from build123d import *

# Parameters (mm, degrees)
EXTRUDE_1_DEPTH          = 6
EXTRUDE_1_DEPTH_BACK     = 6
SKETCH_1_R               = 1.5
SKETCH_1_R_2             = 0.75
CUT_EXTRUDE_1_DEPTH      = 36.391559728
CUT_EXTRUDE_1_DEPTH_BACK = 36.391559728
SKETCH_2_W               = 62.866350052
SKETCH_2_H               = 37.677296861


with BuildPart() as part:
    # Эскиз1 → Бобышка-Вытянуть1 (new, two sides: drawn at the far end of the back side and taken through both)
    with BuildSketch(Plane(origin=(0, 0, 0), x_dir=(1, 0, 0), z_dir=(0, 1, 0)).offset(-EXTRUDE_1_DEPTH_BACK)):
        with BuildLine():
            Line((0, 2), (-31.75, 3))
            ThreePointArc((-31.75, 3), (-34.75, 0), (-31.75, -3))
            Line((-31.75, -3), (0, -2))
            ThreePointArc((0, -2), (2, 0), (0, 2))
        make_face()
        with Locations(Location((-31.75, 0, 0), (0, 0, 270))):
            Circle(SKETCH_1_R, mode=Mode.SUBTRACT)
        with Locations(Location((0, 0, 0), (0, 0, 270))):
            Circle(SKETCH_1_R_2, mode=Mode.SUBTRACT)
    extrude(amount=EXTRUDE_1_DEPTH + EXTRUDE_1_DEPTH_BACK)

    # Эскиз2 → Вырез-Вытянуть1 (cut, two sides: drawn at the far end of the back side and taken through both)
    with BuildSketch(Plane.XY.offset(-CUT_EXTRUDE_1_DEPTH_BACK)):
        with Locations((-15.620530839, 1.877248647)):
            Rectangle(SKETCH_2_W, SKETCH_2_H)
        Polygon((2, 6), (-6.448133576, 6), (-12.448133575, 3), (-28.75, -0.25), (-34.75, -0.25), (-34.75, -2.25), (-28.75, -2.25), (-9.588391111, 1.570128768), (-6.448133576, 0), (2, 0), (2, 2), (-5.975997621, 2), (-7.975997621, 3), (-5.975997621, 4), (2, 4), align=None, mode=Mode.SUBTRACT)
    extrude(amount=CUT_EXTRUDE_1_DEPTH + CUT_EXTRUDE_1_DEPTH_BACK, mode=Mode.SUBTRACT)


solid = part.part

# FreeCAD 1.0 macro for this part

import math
import FreeCAD as App
import Part
import Sketcher
from FreeCAD import Vector


def add_polygon(sketch, points):
    """Adds a closed chain of lines whose ends are joined by coincident constraints."""
    first, n = sketch.GeometryCount, len(points)
    for a, b in zip(points, points[1:] + points[:1]):
        sketch.addGeometry(Part.LineSegment(App.Vector(*a, 0), App.Vector(*b, 0)), False)
    for i in range(n):
        sketch.addConstraint(Sketcher.Constraint("Coincident", first + i, 2, first + (i + 1) % n, 1))

doc = App.newDocument("Part")
body = doc.addObject("PartDesign::Body", "Body")

# Sketch on XZ plane
sketch1 = body.newObject("Sketcher::SketchObject", "Sketch")
sketch1.AttachmentSupport = (doc.getObject("XZ_Plane"), [""])
sketch1.MapMode = "FlatFace"
sketch1.addGeometry([
    Part.LineSegment(Vector(0, -2, 0), Vector(-31.75, -3, 0)),  # 0
    Part.ArcOfCircle(Part.Circle(Vector(-31.75, 0, 0), Vector(0, 0, 1), 3), math.radians(90), math.radians(270)),  # 1
    Part.LineSegment(Vector(-31.75, 3, 0), Vector(0, 2, 0)),  # 2
    Part.ArcOfCircle(Part.Circle(Vector(0, 0, 0), Vector(0, 0, 1), 2), math.radians(-90), math.radians(90)),  # 3
    Part.Circle(Vector(-31.75, 0, 0), Vector(0, 0, 1), 1.5),  # 4
    Part.Circle(Vector(0, 0, 0), Vector(0, 0, 1), 0.75),  # 5
], False)
sketch1.addConstraint([
    Sketcher.Constraint("Coincident", 0, 2, 1, 2),
    Sketcher.Constraint("Coincident", 1, 1, 2, 1),
    Sketcher.Constraint("Coincident", 2, 2, 3, 2),
    Sketcher.Constraint("Coincident", 3, 1, 0, 1),
    Sketcher.Constraint("Coincident", 3, 3, -1, 1),
    Sketcher.Constraint("Coincident", 5, 3, -1, 1),
    Sketcher.Constraint("Coincident", 4, 3, 1, 3),
    Sketcher.Constraint("Symmetric", 0, 2, 1, 1, -1),
    Sketcher.Constraint("PointOnObject", 2, 2, -2),
    Sketcher.Constraint("PointOnObject", 3, 1, -2),
    Sketcher.Constraint("Vertical", 4, 3, 0, 2),
    Sketcher.Constraint("Diameter", 4, 3.0),
    Sketcher.Constraint("Radius", 1, 3.0),
    Sketcher.Constraint("Radius", 3, 2.0),
    Sketcher.Constraint("Diameter", 5, 1.5),
    Sketcher.Constraint("DistanceX", 1, 3, -1, 1, 31.75),
])
pad1 = body.newObject("PartDesign::Pad", "Pad")
pad1.Profile = sketch1
pad1.Type = "TwoLengths"
pad1.Length = 6
pad1.Length2 = 6
pad1.Reversed = True

# Sketch on XY plane
sketch2 = body.newObject("Sketcher::SketchObject", "Sketch001")
sketch2.AttachmentSupport = (doc.getObject("XY_Plane"), [""])
sketch2.MapMode = "FlatFace"
add_polygon(sketch2, [(-47.053706, 20.715897), (-47.053706, -16.9614), (15.812644, -16.9614), (15.812644, 20.715897)])  # lines 0-3
add_polygon(sketch2, [(-6.448134, 6), (2, 6), (2, 4), (-5.975998, 4), (-7.975998, 3), (-5.975998, 2), (2, 2), (2, 0), (-6.448134, 0), (-9.588391, 1.570129), (-28.75, -2.25), (-34.75, -2.25), (-34.75, -0.25), (-28.75, -0.25), (-12.448134, 3)])  # lines 4-18
sketch2.addConstraint([
    Sketcher.Constraint("Vertical", 0),
    Sketcher.Constraint("Horizontal", 1),
    Sketcher.Constraint("Vertical", 2),
    Sketcher.Constraint("Horizontal", 3),
    Sketcher.Constraint("Horizontal", 4),
    Sketcher.Constraint("Vertical", 5),
    Sketcher.Constraint("Horizontal", 6),
    Sketcher.Constraint("Horizontal", 9),
    Sketcher.Constraint("Vertical", 10),
    Sketcher.Constraint("Horizontal", 11),
    Sketcher.Constraint("Horizontal", 14),
    Sketcher.Constraint("Vertical", 15),
    Sketcher.Constraint("Horizontal", 16),
    Sketcher.Constraint("PointOnObject", 10, 2, -1),
    Sketcher.Constraint("Parallel", 8, 12),
    Sketcher.Constraint("Parallel", 13, 17),
    Sketcher.Constraint("Parallel", 7, 18),
    Sketcher.Constraint("Horizontal", 7, 2, 17, 2),
    Sketcher.Constraint("Vertical", 6, 2, 8, 2),
    Sketcher.Constraint("Vertical", 5, 2, 9, 2),
    Sketcher.Constraint("Vertical", 13, 2, 16, 2),
    Sketcher.Constraint("Vertical", 11, 2, 18, 2),
    Sketcher.Constraint("Equal", 5, 10),
    Sketcher.Constraint("Equal", 10, 15),
    Sketcher.Constraint("Equal", 7, 8),
    Sketcher.Constraint("DistanceX", 14, 2, 14, 1, 6.0),
    Sketcher.Constraint("DistanceY", 5, 2, 5, 1, 2.0),
    Sketcher.Constraint("DistanceX", -1, 1, 4, 2, 2.0),
    Sketcher.Constraint("DistanceY", -1, 1, 4, 2, 6.0),
    Sketcher.Constraint("DistanceX", 7, 2, 6, 2, 2.0),
    Sketcher.Constraint("DistanceX", 13, 2, -1, 1, 28.75),
    Sketcher.Constraint("DistanceY", 13, 2, -1, 1, 2.25),
    Sketcher.Constraint("DistanceX", 1, 1, 1, 2, 62.86635),
    Sketcher.Constraint("DistanceY", 0, 2, -1, 1, 16.9614),
    Sketcher.Constraint("DistanceX", 4, 1, 4, 2, 8.448134),
    Sketcher.Constraint("DistanceX", 6, 2, 6, 1, 7.975998),
    Sketcher.Constraint("DistanceY", 0, 2, 0, 1, 37.677297),
    Sketcher.Constraint("DistanceX", 6, 2, 2, 2, 21.788642),
])
pocket1 = body.newObject("PartDesign::Pocket", "Pocket")
pocket1.Profile = sketch2
pocket1.Type = "ThroughAll"
pocket1.Midplane = True

doc.recompute()
